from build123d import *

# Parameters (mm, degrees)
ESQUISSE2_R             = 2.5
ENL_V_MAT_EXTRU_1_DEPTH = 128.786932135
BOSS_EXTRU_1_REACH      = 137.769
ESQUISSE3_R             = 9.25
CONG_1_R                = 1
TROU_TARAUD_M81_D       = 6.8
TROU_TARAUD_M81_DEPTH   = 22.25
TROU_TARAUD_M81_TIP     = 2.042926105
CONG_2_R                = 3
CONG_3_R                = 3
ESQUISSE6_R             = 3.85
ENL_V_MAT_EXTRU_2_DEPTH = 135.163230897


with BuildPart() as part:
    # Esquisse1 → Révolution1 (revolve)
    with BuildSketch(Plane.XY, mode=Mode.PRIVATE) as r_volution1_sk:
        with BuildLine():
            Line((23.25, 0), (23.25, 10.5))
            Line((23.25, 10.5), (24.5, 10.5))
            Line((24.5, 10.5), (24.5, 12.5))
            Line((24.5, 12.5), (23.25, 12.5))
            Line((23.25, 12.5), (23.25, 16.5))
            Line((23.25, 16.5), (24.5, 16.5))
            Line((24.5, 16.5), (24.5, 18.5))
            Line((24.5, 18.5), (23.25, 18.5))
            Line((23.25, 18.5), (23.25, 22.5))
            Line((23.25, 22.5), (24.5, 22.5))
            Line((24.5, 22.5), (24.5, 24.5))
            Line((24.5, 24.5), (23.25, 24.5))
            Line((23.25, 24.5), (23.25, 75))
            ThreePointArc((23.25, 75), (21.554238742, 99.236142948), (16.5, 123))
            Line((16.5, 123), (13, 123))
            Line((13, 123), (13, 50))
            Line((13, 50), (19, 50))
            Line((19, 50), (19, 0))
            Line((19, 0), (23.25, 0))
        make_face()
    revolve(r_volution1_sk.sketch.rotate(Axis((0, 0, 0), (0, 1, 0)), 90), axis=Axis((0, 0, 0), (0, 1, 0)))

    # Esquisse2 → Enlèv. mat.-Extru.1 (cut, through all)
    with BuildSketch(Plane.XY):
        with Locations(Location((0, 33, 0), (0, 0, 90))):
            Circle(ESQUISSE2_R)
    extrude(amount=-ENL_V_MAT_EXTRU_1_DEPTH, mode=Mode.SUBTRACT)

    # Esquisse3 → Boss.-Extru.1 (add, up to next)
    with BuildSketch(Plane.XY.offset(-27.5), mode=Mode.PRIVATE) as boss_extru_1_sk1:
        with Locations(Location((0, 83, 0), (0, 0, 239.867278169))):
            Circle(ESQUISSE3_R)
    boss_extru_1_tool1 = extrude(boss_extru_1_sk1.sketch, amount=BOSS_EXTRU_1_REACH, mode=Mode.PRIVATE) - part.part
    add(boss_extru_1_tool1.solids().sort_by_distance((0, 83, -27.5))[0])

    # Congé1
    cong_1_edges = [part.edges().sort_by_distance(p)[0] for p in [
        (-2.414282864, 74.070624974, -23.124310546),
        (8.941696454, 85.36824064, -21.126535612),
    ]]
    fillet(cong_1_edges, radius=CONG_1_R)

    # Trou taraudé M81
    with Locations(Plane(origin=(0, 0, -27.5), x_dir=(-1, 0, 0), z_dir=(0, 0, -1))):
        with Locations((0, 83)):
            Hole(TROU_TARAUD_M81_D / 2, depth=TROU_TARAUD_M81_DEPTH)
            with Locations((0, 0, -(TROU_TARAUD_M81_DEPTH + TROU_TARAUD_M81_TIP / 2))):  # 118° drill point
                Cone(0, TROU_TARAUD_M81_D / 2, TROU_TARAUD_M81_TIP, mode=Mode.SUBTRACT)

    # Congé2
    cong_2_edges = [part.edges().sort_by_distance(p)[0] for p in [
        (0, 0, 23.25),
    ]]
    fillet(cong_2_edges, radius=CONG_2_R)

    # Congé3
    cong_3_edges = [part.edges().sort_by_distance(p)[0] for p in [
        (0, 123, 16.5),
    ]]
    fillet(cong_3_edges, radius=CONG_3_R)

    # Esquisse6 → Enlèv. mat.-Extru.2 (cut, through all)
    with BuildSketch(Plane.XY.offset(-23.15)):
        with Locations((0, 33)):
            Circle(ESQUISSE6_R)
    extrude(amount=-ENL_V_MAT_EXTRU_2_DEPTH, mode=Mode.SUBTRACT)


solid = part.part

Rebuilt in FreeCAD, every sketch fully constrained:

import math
import FreeCAD as App
import Part
import Sketcher

V = App.Vector
Q = App.Units.Quantity


def edges_at(feature, points):
    """Names of the edges that pass closest to the given points."""
    edges = feature.Shape.Edges
    near = lambda p: min(range(len(edges)), key=lambda i: edges[i].distToShape(Part.Vertex(*p))[0])
    return sorted({f"Edge{near(p) + 1}" for p in points})

doc = App.newDocument("Part")
body = doc.addObject("PartDesign::Body", "Body")

# Sketch on XY plane
sketch1 = body.newObject("Sketcher::SketchObject", "Sketch")
sketch1.AttachmentSupport = (doc.getObject("XY_Plane"), [""])
sketch1.MapMode = "FlatFace"
sketch1.addGeometry([
    Part.LineSegment(V(23.2, 0, 0), V(23.2, 10.5, 0)),  # 0
    Part.LineSegment(V(23.2, 10.5, 0), V(24.5, 10.5, 0)),  # 1
    Part.LineSegment(V(24.5, 10.5, 0), V(24.5, 12.5, 0)),  # 2
    Part.LineSegment(V(24.5, 12.5, 0), V(23.2, 12.5, 0)),  # 3
    Part.LineSegment(V(23.2, 12.5, 0), V(23.2, 16.5, 0)),  # 4
    Part.LineSegment(V(23.2, 16.5, 0), V(24.5, 16.5, 0)),  # 5
    Part.LineSegment(V(24.5, 16.5, 0), V(24.5, 18.5, 0)),  # 6
    Part.LineSegment(V(24.5, 18.5, 0), V(23.2, 18.5, 0)),  # 7
    Part.LineSegment(V(23.2, 18.5, 0), V(23.2, 22.5, 0)),  # 8
    Part.LineSegment(V(23.2, 22.5, 0), V(24.5, 22.5, 0)),  # 9
    Part.LineSegment(V(24.5, 22.5, 0), V(24.5, 24.5, 0)),  # 10
    Part.LineSegment(V(24.5, 24.5, 0), V(23.2, 24.5, 0)),  # 11
    Part.LineSegment(V(23.2, 24.5, 0), V(23.2, 75, 0)),  # 12
    Part.ArcOfCircle(Part.Circle(V(-150.8, 75, 0), V(0, 0, 1), 174), math.radians(0), math.radians(16.01)),  # 13
    Part.LineSegment(V(16.5, 123, 0), V(13, 123, 0)),  # 14
    Part.LineSegment(V(13, 123, 0), V(13, 50, 0)),  # 15
    Part.LineSegment(V(13, 50, 0), V(19, 50, 0)),  # 16
    Part.LineSegment(V(19, 50, 0), V(19, 0, 0)),  # 17
    Part.LineSegment(V(19, 0, 0), V(23.2, 0, 0)),  # 18
], False)
sketch1.addConstraint([
    Sketcher.Constraint("Coincident", 0, 2, 1, 1),
    Sketcher.Constraint("Coincident", 1, 2, 2, 1),
    Sketcher.Constraint("Coincident", 2, 2, 3, 1),
    Sketcher.Constraint("Coincident", 3, 2, 4, 1),
    Sketcher.Constraint("Coincident", 4, 2, 5, 1),
    Sketcher.Constraint("Coincident", 5, 2, 6, 1),
    Sketcher.Constraint("Coincident", 6, 2, 7, 1),
    Sketcher.Constraint("Coincident", 7, 2, 8, 1),
    Sketcher.Constraint("Coincident", 8, 2, 9, 1),
    Sketcher.Constraint("Coincident", 9, 2, 10, 1),
    Sketcher.Constraint("Coincident", 10, 2, 11, 1),
    Sketcher.Constraint("Coincident", 11, 2, 12, 1),
    Sketcher.Constraint("Tangent", 12, 2, 13, 1),
    Sketcher.Constraint("Coincident", 13, 2, 14, 1),
    Sketcher.Constraint("Coincident", 14, 2, 15, 1),
    Sketcher.Constraint("Coincident", 15, 2, 16, 1),
    Sketcher.Constraint("Coincident", 16, 2, 17, 1),
    Sketcher.Constraint("Coincident", 17, 2, 18, 1),
    Sketcher.Constraint("Coincident", 18, 2, 0, 1),
    Sketcher.Constraint("Vertical", 0),
    Sketcher.Constraint("Horizontal", 1),
    Sketcher.Constraint("Vertical", 2),
    Sketcher.Constraint("Horizontal", 3),
    Sketcher.Constraint("Vertical", 4),
    Sketcher.Constraint("Horizontal", 5),
    Sketcher.Constraint("Vertical", 6),
    Sketcher.Constraint("Horizontal", 7),
    Sketcher.Constraint("Vertical", 8),
    Sketcher.Constraint("Horizontal", 9),
    Sketcher.Constraint("Vertical", 10),
    Sketcher.Constraint("Horizontal", 11),
    Sketcher.Constraint("Vertical", 12),
    Sketcher.Constraint("Horizontal", 14),
    Sketcher.Constraint("Vertical", 15),
    Sketcher.Constraint("Horizontal", 16),
    Sketcher.Constraint("Vertical", 17),
    Sketcher.Constraint("Horizontal", 18),
    Sketcher.Constraint("PointOnObject", 17, 2, -1),
    Sketcher.Constraint("Vertical", 0, 2, 3, 2),
    Sketcher.Constraint("Vertical", 2, 2, 5, 2),
    Sketcher.Constraint("Vertical", 4, 2, 7, 2),
    Sketcher.Constraint("Vertical", 6, 2, 9, 2),
    Sketcher.Constraint("Vertical", 8, 2, 11, 2),
    Sketcher.Constraint("Equal", 2, 6),
    Sketcher.Constraint("Equal", 4, 8),
    Sketcher.Constraint("Equal", 6, 10),
    Sketcher.Constraint("DistanceX", 16, 1, 16, 2, Q("6 mm")),
    Sketcher.Constraint("DistanceY", 2, 1, 2, 2, Q("2 mm")),
    Sketcher.Constraint("DistanceY", 4, 1, 4, 2, Q("4 mm")),
    Sketcher.Constraint("DistanceY", 15, 2, 15, 1, Q("73 mm")),
    Sketcher.Constraint("DistanceY", 17, 2, 17, 1, Q("50 mm")),
    Sketcher.Constraint("DistanceX", 14, 2, 14, 1, Q("3.5 mm")),
    Sketcher.Constraint("DistanceY", 0, 1, 0, 2, Q("10.5 mm")),
    Sketcher.Constraint("DistanceY", 12, 1, 12, 2, Q("50.5 mm")),
    Sketcher.Constraint("DistanceX", -1, 1, 14, 2, Q("13 mm")),
    Sketcher.Constraint("DistanceX", 13, 2, 10, 2, Q("8 mm")),
    Sketcher.Constraint("DistanceX", 1, 1, 1, 2, Q("1.25 mm")),
])
revolution = body.newObject("PartDesign::Revolution", "Revolution")
revolution.Profile = sketch1
revolution.ReferenceAxis = (sketch1, ["V_Axis"])
revolution.Angle = 360

# Sketch on XY plane
sketch2 = body.newObject("Sketcher::SketchObject", "Sketch001")
sketch2.AttachmentSupport = (doc.getObject("XY_Plane"), [""])
sketch2.MapMode = "FlatFace"
sketch2.addGeometry(Part.Circle(V(0, 33, 0), V(0, 0, 1), 2.5), False)
sketch2.addConstraint([
    Sketcher.Constraint("PointOnObject", 0, 3, -2),
    Sketcher.Constraint("Diameter", 0, Q("5 mm")),
    Sketcher.Constraint("DistanceY", -1, 1, 0, 3, Q("33 mm")),
])
pocket1 = body.newObject("PartDesign::Pocket", "Pocket")
pocket1.Profile = sketch2
pocket1.Type = "ThroughAll"

# Sketch on XY plane
sketch3 = body.newObject("Sketcher::SketchObject", "Sketch002")
sketch3.AttachmentSupport = (doc.getObject("XY_Plane"), [""])
sketch3.MapMode = "FlatFace"
sketch3.AttachmentOffset = App.Placement(V(0, 0, -27.5), App.Rotation())
sketch3.addGeometry(Part.Circle(V(0, 83, 0), V(0, 0, 1), 9), False)
sketch3.addConstraint([
    Sketcher.Constraint("PointOnObject", 0, 3, -2),
    Sketcher.Constraint("Diameter", 0, Q("18.5 mm")),
    Sketcher.Constraint("DistanceY", -1, 1, 0, 3, Q("83 mm")),
])
pad1 = body.newObject("PartDesign::Pad", "Pad")
pad1.Profile = sketch3
pad1.Type = "UpToFirst"
doc.recompute()

fillet = body.newObject("PartDesign::Fillet", "Fillet")
fillet.Base = (pad1, edges_at(pad1, [(-2.414, 74.071, -23.124), (8.942, 85.368, -21.127)]))
fillet.Radius = 1

# Sketch on XY plane
sketch4 = body.newObject("Sketcher::SketchObject", "Sketch003")
sketch4.AttachmentSupport = (doc.getObject("XY_Plane"), [""])
sketch4.MapMode = "FlatFace"
sketch4.AttachmentOffset = App.Placement(V(0, 0, -27.5), App.Rotation())
sketch4.addGeometry(Part.Circle(V(0, 83, 0), V(0, 0, 1), 3.4), False)
sketch4.addConstraint([
    Sketcher.Constraint("PointOnObject", 0, 3, -2),
    Sketcher.Constraint("Diameter", 0, Q("6.8 mm")),
    Sketcher.Constraint("DistanceY", -1, 1, 0, 3, Q("83 mm")),
])
doc.recompute()
hole = body.newObject("PartDesign::Hole", "Hole")
hole.Profile = sketch4
hole.ThreadType = "None"
hole.Diameter = 6.8
hole.DepthType = "Dimension"
hole.Depth = 22.25
hole.DrillPoint = "Angled"
hole.DrillPointAngle = 118
hole.Reversed = True
doc.recompute()

fillet2 = body.newObject("PartDesign::Fillet", "Fillet001")
fillet2.Base = (hole, edges_at(hole, [(0, 0, 23.25)]))
fillet2.Radius = 3
doc.recompute()

fillet3 = body.newObject("PartDesign::Fillet", "Fillet002")
fillet3.Base = (fillet2, edges_at(fillet2, [(0, 123, 16.5)]))
fillet3.Radius = 3

# Sketch on XY plane
sketch5 = body.newObject("Sketcher::SketchObject", "Sketch004")
sketch5.AttachmentSupport = (doc.getObject("XY_Plane"), [""])
sketch5.MapMode = "FlatFace"
sketch5.AttachmentOffset = App.Placement(V(0, 0, -23.15), App.Rotation())
sketch5.addGeometry(Part.Circle(V(0, 33, 0), V(0, 0, 1), 3.9), False)
sketch5.addConstraint([
    Sketcher.Constraint("PointOnObject", 0, 3, -2),
    Sketcher.Constraint("Diameter", 0, Q("7.7 mm")),
    Sketcher.Constraint("DistanceY", -1, 1, 0, 3, Q("33 mm")),
])
pocket2 = body.newObject("PartDesign::Pocket", "Pocket001")
pocket2.Profile = sketch5
pocket2.Type = "ThroughAll"

doc.recompute()
